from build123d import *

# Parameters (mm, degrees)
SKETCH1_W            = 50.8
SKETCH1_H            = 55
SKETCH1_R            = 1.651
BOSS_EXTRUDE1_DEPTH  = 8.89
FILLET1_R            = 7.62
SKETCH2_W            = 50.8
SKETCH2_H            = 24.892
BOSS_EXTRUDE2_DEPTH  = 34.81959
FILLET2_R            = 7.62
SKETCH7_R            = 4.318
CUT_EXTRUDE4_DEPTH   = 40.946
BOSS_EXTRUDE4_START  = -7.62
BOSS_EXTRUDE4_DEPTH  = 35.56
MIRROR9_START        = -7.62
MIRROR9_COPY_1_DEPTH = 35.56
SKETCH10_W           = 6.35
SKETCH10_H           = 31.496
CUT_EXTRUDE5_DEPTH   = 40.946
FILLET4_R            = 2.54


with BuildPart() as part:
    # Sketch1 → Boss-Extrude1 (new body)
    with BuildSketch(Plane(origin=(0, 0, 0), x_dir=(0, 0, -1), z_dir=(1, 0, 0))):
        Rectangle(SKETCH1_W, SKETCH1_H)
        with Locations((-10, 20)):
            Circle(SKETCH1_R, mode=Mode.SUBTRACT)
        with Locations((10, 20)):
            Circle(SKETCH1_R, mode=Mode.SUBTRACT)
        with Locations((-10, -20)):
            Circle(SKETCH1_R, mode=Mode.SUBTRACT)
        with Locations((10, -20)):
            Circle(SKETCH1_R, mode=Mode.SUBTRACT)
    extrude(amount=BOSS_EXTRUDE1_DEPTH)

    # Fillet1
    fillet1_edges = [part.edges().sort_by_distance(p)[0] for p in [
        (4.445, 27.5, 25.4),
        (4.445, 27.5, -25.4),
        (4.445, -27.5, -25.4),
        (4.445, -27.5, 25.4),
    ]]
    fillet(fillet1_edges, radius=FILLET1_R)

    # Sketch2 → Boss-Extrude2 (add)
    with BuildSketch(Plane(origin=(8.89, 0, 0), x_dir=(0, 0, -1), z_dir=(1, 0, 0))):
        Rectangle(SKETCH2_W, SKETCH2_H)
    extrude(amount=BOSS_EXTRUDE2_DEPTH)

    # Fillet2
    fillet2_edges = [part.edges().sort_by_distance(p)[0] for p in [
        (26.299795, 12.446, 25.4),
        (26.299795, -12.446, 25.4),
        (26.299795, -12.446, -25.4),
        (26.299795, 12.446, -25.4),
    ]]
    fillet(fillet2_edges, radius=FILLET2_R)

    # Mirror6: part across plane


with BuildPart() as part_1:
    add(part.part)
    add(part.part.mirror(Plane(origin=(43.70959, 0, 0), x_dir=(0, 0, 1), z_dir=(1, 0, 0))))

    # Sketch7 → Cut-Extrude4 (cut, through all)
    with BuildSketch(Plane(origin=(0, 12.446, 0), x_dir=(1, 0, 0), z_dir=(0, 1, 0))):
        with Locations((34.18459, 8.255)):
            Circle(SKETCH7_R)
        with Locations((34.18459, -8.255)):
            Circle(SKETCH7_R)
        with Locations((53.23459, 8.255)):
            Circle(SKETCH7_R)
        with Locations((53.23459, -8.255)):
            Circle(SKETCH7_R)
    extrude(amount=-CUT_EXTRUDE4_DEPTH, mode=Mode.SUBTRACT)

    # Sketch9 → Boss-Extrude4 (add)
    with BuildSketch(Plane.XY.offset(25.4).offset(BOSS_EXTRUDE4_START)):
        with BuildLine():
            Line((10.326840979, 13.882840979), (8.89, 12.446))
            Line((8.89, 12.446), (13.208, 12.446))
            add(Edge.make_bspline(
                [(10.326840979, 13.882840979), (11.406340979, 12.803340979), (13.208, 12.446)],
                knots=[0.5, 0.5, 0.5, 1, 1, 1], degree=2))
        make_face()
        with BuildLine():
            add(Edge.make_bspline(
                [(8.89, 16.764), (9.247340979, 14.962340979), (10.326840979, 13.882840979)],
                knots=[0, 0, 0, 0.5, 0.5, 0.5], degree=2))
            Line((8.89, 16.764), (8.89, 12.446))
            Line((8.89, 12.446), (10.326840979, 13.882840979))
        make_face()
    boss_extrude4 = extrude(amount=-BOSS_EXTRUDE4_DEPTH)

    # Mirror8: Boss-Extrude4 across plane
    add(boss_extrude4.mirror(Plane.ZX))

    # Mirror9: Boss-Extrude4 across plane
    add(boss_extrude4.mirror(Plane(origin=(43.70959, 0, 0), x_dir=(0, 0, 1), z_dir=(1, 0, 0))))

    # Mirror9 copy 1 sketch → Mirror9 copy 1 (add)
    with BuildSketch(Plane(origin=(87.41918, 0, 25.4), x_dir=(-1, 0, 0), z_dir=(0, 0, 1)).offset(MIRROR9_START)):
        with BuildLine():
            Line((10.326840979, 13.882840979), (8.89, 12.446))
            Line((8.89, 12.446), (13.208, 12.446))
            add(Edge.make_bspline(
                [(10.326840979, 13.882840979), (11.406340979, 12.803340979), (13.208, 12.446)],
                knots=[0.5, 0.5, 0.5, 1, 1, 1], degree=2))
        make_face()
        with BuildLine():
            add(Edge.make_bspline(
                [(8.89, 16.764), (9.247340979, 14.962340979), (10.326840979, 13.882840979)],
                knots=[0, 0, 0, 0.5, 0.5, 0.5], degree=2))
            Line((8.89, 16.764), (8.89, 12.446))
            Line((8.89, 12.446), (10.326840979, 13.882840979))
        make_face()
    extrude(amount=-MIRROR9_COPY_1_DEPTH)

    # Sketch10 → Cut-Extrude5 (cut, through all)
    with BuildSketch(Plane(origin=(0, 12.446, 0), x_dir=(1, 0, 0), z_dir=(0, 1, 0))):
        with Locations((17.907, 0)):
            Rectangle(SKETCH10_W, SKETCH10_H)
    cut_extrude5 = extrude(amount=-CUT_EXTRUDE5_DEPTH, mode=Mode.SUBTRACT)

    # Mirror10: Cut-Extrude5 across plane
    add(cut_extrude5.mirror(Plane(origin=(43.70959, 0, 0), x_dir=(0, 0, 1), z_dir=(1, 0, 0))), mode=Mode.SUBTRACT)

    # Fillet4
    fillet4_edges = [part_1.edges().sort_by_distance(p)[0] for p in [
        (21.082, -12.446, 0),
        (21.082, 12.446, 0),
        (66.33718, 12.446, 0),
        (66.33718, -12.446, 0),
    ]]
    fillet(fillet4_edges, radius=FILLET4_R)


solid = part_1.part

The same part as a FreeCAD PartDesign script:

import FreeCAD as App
import Part
import Sketcher
Q = App.Units.Quantity


def edges_at(feature, points):
    """Names of the edges that pass closest to the given points."""
    edges = feature.Shape.Edges
    near = lambda p: min(range(len(edges)), key=lambda i: edges[i].distToShape(Part.Vertex(*p))[0])
    return sorted({f"Edge{near(p) + 1}" for p in points})


def add_polygon(sketch, points):
    """Adds a closed chain of lines whose ends are joined by coincident constraints."""
    first, n = sketch.GeometryCount, len(points)
    for a, b in zip(points, points[1:] + points[:1]):
        sketch.addGeometry(Part.LineSegment(App.Vector(*a, 0), App.Vector(*b, 0)), False)
    for i in range(n):
        sketch.addConstraint(Sketcher.Constraint("Coincident", first + i, 2, first + (i + 1) % n, 1))

doc = App.newDocument("Part")
body = doc.addObject("PartDesign::Body", "Body")

sketch1 = body.newObject("Sketcher::SketchObject", "Sketch")
sketch1.AttachmentSupport = (doc.getObject("YZ_Plane"), [""])
sketch1.MapMode = "FlatFace"
add_polygon(sketch1, [(27.5, 25.4), (-27.5, 25.4), (-27.5, -25.4), (27.5, -25.4)])
sketch1.addGeometry(Part.Circle(App.Vector(-20, 10, 0), App.Vector(0, 0, 1), 1.651), False)
sketch1.addGeometry(Part.Circle(App.Vector(-20, -10, 0), App.Vector(0, 0, 1), 1.651), False)
sketch1.addGeometry(Part.Circle(App.Vector(20, 10, 0), App.Vector(0, 0, 1), 1.651), False)
sketch1.addGeometry(Part.Circle(App.Vector(20, -10, 0), App.Vector(0, 0, 1), 1.651), False)
sketch1.addConstraint(Sketcher.Constraint("Horizontal", 0))
sketch1.addConstraint(Sketcher.Constraint("Vertical", 1))
sketch1.addConstraint(Sketcher.Constraint("Horizontal", 2))
sketch1.addConstraint(Sketcher.Constraint("Vertical", 3))
sketch1.addConstraint(Sketcher.Constraint("Equal", 4, 5))
sketch1.addConstraint(Sketcher.Constraint("Equal", 5, 6))
sketch1.addConstraint(Sketcher.Constraint("Equal", 6, 7))
sketch1.addConstraint(Sketcher.Constraint("Symmetric", 5, 3, 6, 3, -1, 1))
sketch1.addConstraint(Sketcher.Constraint("Symmetric", 4, 3, 7, 3, -1, 1))
sketch1.addConstraint(Sketcher.Constraint("Symmetric", 0, 2, 2, 2, -1, 1))
sketch1.addConstraint(Sketcher.Constraint("Symmetric", 4, 3, 6, 3, -2))
sketch1.addConstraint(Sketcher.Constraint("Diameter", 4, Q("0.13 in")))
sketch1.addConstraint(Sketcher.Constraint("DistanceY", 1, 2, 1, 1, Q("2 in")))
sketch1.addConstraint(Sketcher.Constraint("DistanceX", 0, 2, 0, 1, 55.0))
sketch1.addConstraint(Sketcher.Constraint("DistanceX", 4, 3, -1, 1, 20.0))
sketch1.addConstraint(Sketcher.Constraint("DistanceY", -1, 1, 4, 3, 10.0))
pad1 = body.newObject("PartDesign::Pad", "Pad")
pad1.Profile = sketch1
pad1.Length = Q("0.35 in")
doc.recompute()

fillet = body.newObject("PartDesign::Fillet", "Fillet")
fillet.Base = (pad1, edges_at(pad1, [
    (4.445, 27.5, 25.4),
    (4.445, 27.5, -25.4),
    (4.445, -27.5, -25.4),
    (4.445, -27.5, 25.4),
]))
fillet.Radius = Q("0.3 in")

sketch2 = body.newObject("Sketcher::SketchObject", "Sketch001")
sketch2.AttachmentSupport = (doc.getObject("YZ_Plane"), [""])
sketch2.MapMode = "FlatFace"
sketch2.AttachmentOffset = App.Placement(App.Vector(0, 0, 0.35 * 25.4), App.Rotation())
add_polygon(sketch2, [(12.446, 25.4), (-12.446, 25.4), (-12.446, -25.4), (12.446, -25.4)])
sketch2.addConstraint(Sketcher.Constraint("Horizontal", 0))
sketch2.addConstraint(Sketcher.Constraint("Vertical", 1))
sketch2.addConstraint(Sketcher.Constraint("Horizontal", 2))
sketch2.addConstraint(Sketcher.Constraint("Vertical", 3))
sketch2.addConstraint(Sketcher.Constraint("Symmetric", 0, 2, 2, 2, -1, 1))
sketch2.addConstraint(Sketcher.Constraint("DistanceY", 1, 2, 1, 1, Q("2 in")))
sketch2.addConstraint(Sketcher.Constraint("DistanceX", 0, 2, 0, 1, Q("0.98 in")))
pad2 = body.newObject("PartDesign::Pad", "Pad001")
pad2.Profile = sketch2
pad2.Length = 34.81959
doc.recompute()

fillet2 = body.newObject("PartDesign::Fillet", "Fillet001")
fillet2.Base = (pad2, edges_at(pad2, [
    (26.3, 12.446, 25.4),
    (26.3, -12.446, 25.4),
    (26.3, -12.446, -25.4),
    (26.3, 12.446, -25.4),
]))
fillet2.Radius = Q("0.3 in")
body2 = doc.addObject("PartDesign::Body", "Body001")
doc.recompute()

body2.BaseFeature = body
doc.recompute()

mirroring = doc.addObject("Part::Mirroring", "Mirroring")
mirroring.Source = body
mirroring.Base = App.Vector(43.70959, 0, 0)
mirroring.Normal = App.Vector(1, 0, 0)
body3 = doc.addObject("PartDesign::Body", "Body002")
body3.BaseFeature = mirroring
boolean = body2.newObject("PartDesign::Boolean", "Boolean")
boolean.Type = "Fuse"
boolean.addObjects([body3])
doc.recompute()

sketch3 = body2.newObject("Sketcher::SketchObject", "Sketch002")
sketch3.AttachmentSupport = (doc.getObject("XZ_Plane001"), [""])
sketch3.MapMode = "FlatFace"
sketch3.AttachmentOffset = App.Placement(App.Vector(0, 0, -0.49 * 25.4), App.Rotation())
sketch3.addGeometry(Part.Circle(App.Vector(34.18459, -8.255, 0), App.Vector(0, 0, 1), 4.318), False)
sketch3.addGeometry(Part.Circle(App.Vector(34.18459, 8.255, 0), App.Vector(0, 0, 1), 4.318), False)
sketch3.addGeometry(Part.Circle(App.Vector(53.23459, -8.255, 0), App.Vector(0, 0, 1), 4.318), False)
sketch3.addGeometry(Part.Circle(App.Vector(53.23459, 8.255, 0), App.Vector(0, 0, 1), 4.318), False)
sketch3.addConstraint(Sketcher.Constraint("Equal", 0, 1))
sketch3.addConstraint(Sketcher.Constraint("Equal", 1, 2))
sketch3.addConstraint(Sketcher.Constraint("Equal", 2, 3))
sketch3.addConstraint(Sketcher.Constraint("Symmetric", 0, 3, 1, 3, -1))
sketch3.addConstraint(Sketcher.Constraint("Symmetric", 2, 3, 3, 3, -1))
sketch3.addConstraint(Sketcher.Constraint("Horizontal", 0, 3, 2, 3))
sketch3.addConstraint(Sketcher.Constraint("Diameter", 0, Q("0.34 in")))
sketch3.addConstraint(Sketcher.Constraint("DistanceY", 0, 3, 1, 3, Q("0.65 in")))
sketch3.addConstraint(Sketcher.Constraint("DistanceX", 0, 3, 2, 3, Q("0.75 in")))
sketch3.addConstraint(Sketcher.Constraint("DistanceX", -1, 1, 0, 3, 34.18459))
pocket1 = body2.newObject("PartDesign::Pocket", "Pocket")
pocket1.Profile = sketch3
pocket1.Type = "ThroughAll"
pocket1.Reversed = True

sketch4 = body2.newObject("Sketcher::SketchObject", "Sketch003")
sketch4.AttachmentSupport = (doc.getObject("XY_Plane001"), [""])
sketch4.MapMode = "FlatFace"
sketch4.AttachmentOffset = App.Placement(App.Vector(0, 0, 0.7 * 25.4), App.Rotation())
sketch4.addGeometry(Part.LineSegment(App.Vector(8.89, 12.446, 0), App.Vector(13.208, 12.446, 0)), False)
sketch4.addGeometry(Part.BSplineCurve([App.Vector(13.208, 12.446, 0), App.Vector(9.604682, 13.160682, 0), App.Vector(8.89, 16.764, 0)], [3, 3], [0.5, 1.5], False, 2, [1, 1, 1], False), False)
sketch4.addGeometry(Part.LineSegment(App.Vector(8.89, 16.764, 0), App.Vector(8.89, 12.446, 0)), False)
sketch4.addConstraint(Sketcher.Constraint("Block", 1))
sketch4.addConstraint(Sketcher.Constraint("Coincident", 0, 2, 1, 1))
sketch4.addConstraint(Sketcher.Constraint("Coincident", 1, 2, 2, 1))
sketch4.addConstraint(Sketcher.Constraint("Coincident", 2, 2, 0, 1))
sketch4.addConstraint(Sketcher.Constraint("Horizontal", 0))
sketch4.addConstraint(Sketcher.Constraint("Vertical", 2))
pad3 = body2.newObject("PartDesign::Pad", "Pad002")
pad3.Profile = sketch4
pad3.Length = Q("1.4 in")
pad3.Reversed = True
doc.recompute()

mirrored = body2.newObject("PartDesign::Mirrored", "Mirrored")
mirrored.Originals = [pad3]
mirrored.MirrorPlane = (doc.getObject("XZ_Plane001"), [""])
body2.Tip = mirrored
doc.recompute()

datumplane = body2.newObject("PartDesign::Plane", "DatumPlane")
datumplane.AttachmentSupport = (doc.getObject("YZ_Plane001"), [""])
datumplane.MapMode = "FlatFace"
datumplane.AttachmentOffset = App.Placement(App.Vector(0, 0, 43.70959), App.Rotation())
mirrored2 = body2.newObject("PartDesign::Mirrored", "Mirrored001")
mirrored2.Originals = [pad3]
mirrored2.MirrorPlane = (datumplane, [""])
body2.Tip = mirrored2

sketch5 = body2.newObject("Sketcher::SketchObject", "Sketch004")
sketch5.AttachmentSupport = (doc.getObject("XY_Plane001"), [""])
sketch5.MapMode = "FlatFace"
sketch5.AttachmentOffset = App.Placement(App.Vector(0, 0, 0.7 * 25.4), App.Rotation())
sketch5.addGeometry(Part.LineSegment(App.Vector(78.52918, -12.446, 0), App.Vector(74.21118, -12.446, 0)), False)
sketch5.addGeometry(Part.BSplineCurve([App.Vector(74.21118, -12.446, 0), App.Vector(77.814498, -13.160682, 0), App.Vector(78.52918, -16.764, 0)], [3, 3], [0.5, 1.5], False, 2, [1, 1, 1], False), False)
sketch5.addGeometry(Part.LineSegment(App.Vector(78.52918, -16.764, 0), App.Vector(78.52918, -12.446, 0)), False)
sketch5.addConstraint(Sketcher.Constraint("Block", 1))
sketch5.addConstraint(Sketcher.Constraint("Coincident", 0, 2, 1, 1))
sketch5.addConstraint(Sketcher.Constraint("Coincident", 1, 2, 2, 1))
sketch5.addConstraint(Sketcher.Constraint("Coincident", 2, 2, 0, 1))
sketch5.addConstraint(Sketcher.Constraint("Horizontal", 0))
sketch5.addConstraint(Sketcher.Constraint("Vertical", 2))
pad4 = body2.newObject("PartDesign::Pad", "Pad003")
pad4.Profile = sketch5
pad4.Length = Q("1.4 in")
pad4.Reversed = True

sketch6 = body2.newObject("Sketcher::SketchObject", "Sketch005")
sketch6.AttachmentSupport = (doc.getObject("XZ_Plane001"), [""])
sketch6.MapMode = "FlatFace"
sketch6.AttachmentOffset = App.Placement(App.Vector(0, 0, -0.49 * 25.4), App.Rotation())
add_polygon(sketch6, [(14.732, -15.748), (14.732, 15.748), (21.082, 15.748), (21.082, -15.748)])
sketch6.addConstraint(Sketcher.Constraint("Vertical", 0))
sketch6.addConstraint(Sketcher.Constraint("Horizontal", 1))
sketch6.addConstraint(Sketcher.Constraint("Vertical", 2))
sketch6.addConstraint(Sketcher.Constraint("Horizontal", 3))
sketch6.addConstraint(Sketcher.Constraint("DistanceX", 1, 1, 1, 2, Q("0.25 in")))
sketch6.addConstraint(Sketcher.Constraint("DistanceY", 0, 1, 0, 2, Q("1.24 in")))
sketch6.addConstraint(Sketcher.Constraint("DistanceX", -1, 1, 0, 2, Q("0.58 in")))
sketch6.addConstraint(Sketcher.Constraint("DistanceY", -1, 1, 0, 2, Q("0.62 in")))
pocket2 = body2.newObject("PartDesign::Pocket", "Pocket001")
pocket2.Profile = sketch6
pocket2.Type = "ThroughAll"
pocket2.Reversed = True
doc.recompute()

datumplane2 = body2.newObject("PartDesign::Plane", "DatumPlane001")
datumplane2.AttachmentSupport = (doc.getObject("YZ_Plane001"), [""])
datumplane2.MapMode = "FlatFace"
datumplane2.AttachmentOffset = App.Placement(App.Vector(0, 0, 43.70959), App.Rotation())
mirrored3 = body2.newObject("PartDesign::Mirrored", "Mirrored002")
mirrored3.Originals = [pocket2]
mirrored3.MirrorPlane = (datumplane2, [""])
body2.Tip = mirrored3
doc.recompute()

fillet3 = body2.newObject("PartDesign::Fillet", "Fillet002")
fillet3.Base = (mirrored3, edges_at(mirrored3, [
    (21.082, -12.446, 0),
    (21.082, 12.446, 0),
    (66.337, 12.446, 0),
    (66.337, -12.446, 0),
]))
fillet3.Radius = Q("0.1 in")
mirroring.Visibility = False

doc.recompute()
